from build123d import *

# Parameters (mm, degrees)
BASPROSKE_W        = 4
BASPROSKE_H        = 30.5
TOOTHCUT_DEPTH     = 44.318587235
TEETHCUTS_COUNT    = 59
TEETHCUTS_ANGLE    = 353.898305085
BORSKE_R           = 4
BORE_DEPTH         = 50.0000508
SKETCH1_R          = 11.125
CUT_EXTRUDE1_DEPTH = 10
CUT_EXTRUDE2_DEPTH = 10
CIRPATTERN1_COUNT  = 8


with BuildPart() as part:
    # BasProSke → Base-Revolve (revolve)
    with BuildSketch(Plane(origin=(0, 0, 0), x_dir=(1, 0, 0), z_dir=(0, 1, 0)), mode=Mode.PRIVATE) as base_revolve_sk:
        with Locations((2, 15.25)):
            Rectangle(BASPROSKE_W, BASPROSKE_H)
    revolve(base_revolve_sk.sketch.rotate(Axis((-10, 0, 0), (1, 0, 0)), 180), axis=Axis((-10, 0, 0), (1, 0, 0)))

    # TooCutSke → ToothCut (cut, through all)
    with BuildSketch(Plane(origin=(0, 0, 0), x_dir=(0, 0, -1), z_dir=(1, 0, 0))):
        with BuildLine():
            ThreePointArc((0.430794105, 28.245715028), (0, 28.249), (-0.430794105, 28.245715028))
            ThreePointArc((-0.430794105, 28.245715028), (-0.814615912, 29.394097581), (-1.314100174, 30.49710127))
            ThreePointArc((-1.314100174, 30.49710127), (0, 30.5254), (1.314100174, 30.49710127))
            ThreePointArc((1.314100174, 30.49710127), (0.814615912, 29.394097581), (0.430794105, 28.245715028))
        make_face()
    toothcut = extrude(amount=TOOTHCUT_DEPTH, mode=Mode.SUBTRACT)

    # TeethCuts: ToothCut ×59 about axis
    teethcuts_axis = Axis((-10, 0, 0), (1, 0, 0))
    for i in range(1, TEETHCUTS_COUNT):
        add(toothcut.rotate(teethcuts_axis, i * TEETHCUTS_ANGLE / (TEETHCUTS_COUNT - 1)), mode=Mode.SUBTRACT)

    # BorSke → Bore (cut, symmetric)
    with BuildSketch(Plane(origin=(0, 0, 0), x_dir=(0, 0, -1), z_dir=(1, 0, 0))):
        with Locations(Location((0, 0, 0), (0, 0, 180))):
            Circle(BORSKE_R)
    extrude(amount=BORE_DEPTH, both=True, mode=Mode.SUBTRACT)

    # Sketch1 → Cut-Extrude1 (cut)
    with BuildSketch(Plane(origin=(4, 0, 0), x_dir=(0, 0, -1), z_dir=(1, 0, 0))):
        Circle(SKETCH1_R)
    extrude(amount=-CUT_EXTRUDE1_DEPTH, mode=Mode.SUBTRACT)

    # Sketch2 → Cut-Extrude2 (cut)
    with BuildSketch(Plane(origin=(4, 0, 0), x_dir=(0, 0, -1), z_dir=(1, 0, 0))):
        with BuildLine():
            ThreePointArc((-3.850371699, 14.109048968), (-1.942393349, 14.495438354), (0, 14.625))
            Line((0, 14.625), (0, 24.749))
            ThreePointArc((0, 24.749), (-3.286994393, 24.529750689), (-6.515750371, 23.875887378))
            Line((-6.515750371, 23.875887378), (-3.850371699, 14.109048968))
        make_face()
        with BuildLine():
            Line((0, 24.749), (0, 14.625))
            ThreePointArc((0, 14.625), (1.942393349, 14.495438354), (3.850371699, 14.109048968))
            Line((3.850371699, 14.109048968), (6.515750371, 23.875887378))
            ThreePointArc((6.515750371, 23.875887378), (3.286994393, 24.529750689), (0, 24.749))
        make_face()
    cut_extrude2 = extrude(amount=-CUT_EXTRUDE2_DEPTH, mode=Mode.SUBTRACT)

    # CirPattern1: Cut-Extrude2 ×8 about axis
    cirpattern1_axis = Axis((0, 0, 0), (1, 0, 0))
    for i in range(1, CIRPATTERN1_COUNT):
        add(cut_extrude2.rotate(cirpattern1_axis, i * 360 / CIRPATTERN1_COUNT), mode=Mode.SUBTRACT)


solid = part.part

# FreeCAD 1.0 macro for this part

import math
import FreeCAD as App
import Part
import Sketcher

V = App.Vector
Q = App.Units.Quantity


def add_polygon(sketch, points):
    """Adds a closed chain of lines whose ends are joined by coincident constraints."""
    first, n = sketch.GeometryCount, len(points)
    for a, b in zip(points, points[1:] + points[:1]):
        sketch.addGeometry(Part.LineSegment(App.Vector(*a, 0), App.Vector(*b, 0)), False)
    for i in range(n):
        sketch.addConstraint(Sketcher.Constraint("Coincident", first + i, 2, first + (i + 1) % n, 1))

doc = App.newDocument("Part")
body = doc.addObject("PartDesign::Body", "Body")

sketch1 = body.newObject("Sketcher::SketchObject", "Sketch")
sketch1.AttachmentSupport = (doc.getObject("XZ_Plane"), [""])
sketch1.MapMode = "FlatFace"
add_polygon(sketch1, [(0, -30.5), (0, 0), (4, 0), (4, -30.5)])
sketch1.addConstraint(Sketcher.Constraint("Vertical", 0))
sketch1.addConstraint(Sketcher.Constraint("Horizontal", 1))
sketch1.addConstraint(Sketcher.Constraint("Vertical", 2))
sketch1.addConstraint(Sketcher.Constraint("Horizontal", 3))
sketch1.addConstraint(Sketcher.Constraint("Coincident", 0, 2, -1, 1))
sketch1.addConstraint(Sketcher.Constraint("DistanceX", 1, 1, 1, 2, Q("4 mm")))
sketch1.addConstraint(Sketcher.Constraint("DistanceY", 0, 1, 0, 2, Q("30.5 mm")))
revolution = body.newObject("PartDesign::Revolution", "Revolution")
revolution.Profile = sketch1
revolution.ReferenceAxis = (sketch1, ["H_Axis"])
revolution.Angle = 360

sketch2 = body.newObject("Sketcher::SketchObject", "Sketch001")
sketch2.AttachmentSupport = (doc.getObject("YZ_Plane"), [""])
sketch2.MapMode = "FlatFace"
sketch2.addGeometry(Part.ArcOfCircle(Part.Circle(V(0, 0, 0), V(0, 0, 1), 28.2), math.radians(-0.87), math.radians(0.87)), False)
sketch2.addGeometry(Part.ArcOfCircle(Part.Circle(V(25.1, -11.8, 0), V(0, 0, 1), 11.8), math.radians(62.7), math.radians(74.46)), False)
sketch2.addGeometry(Part.ArcOfCircle(Part.Circle(V(0, 0, 0), V(0, 0, 1), 30.5), math.radians(-2.47), math.radians(2.47)), False)
sketch2.addGeometry(Part.ArcOfCircle(Part.Circle(V(25.1, 11.8, 0), V(0, 0, 1), 11.8), math.radians(-74.46), math.radians(-62.7)), False)
sketch2.addConstraint(Sketcher.Constraint("Coincident", 0, 1, 1, 2))
sketch2.addConstraint(Sketcher.Constraint("Coincident", 1, 1, 2, 1))
sketch2.addConstraint(Sketcher.Constraint("Coincident", 2, 2, 3, 2))
sketch2.addConstraint(Sketcher.Constraint("Coincident", 3, 1, 0, 2))
sketch2.addConstraint(Sketcher.Constraint("Coincident", 0, 3, -1, 1))
sketch2.addConstraint(Sketcher.Constraint("Coincident", 2, 3, -1, 1))
sketch2.addConstraint(Sketcher.Constraint("Equal", 1, 3))
sketch2.addConstraint(Sketcher.Constraint("Symmetric", 1, 3, 3, 3, -1))
sketch2.addConstraint(Sketcher.Constraint("Radius", 1, Q("11.8 mm")))
sketch2.addConstraint(Sketcher.Constraint("Radius", 0, Q("28.249001 mm")))
sketch2.addConstraint(Sketcher.Constraint("Radius", 2, Q("30.5254 mm")))
sketch2.addConstraint(Sketcher.Constraint("DistanceX", -1, 1, 1, 1, Q("30.497101 mm")))
sketch2.addConstraint(Sketcher.Constraint("DistanceY", 1, 3, -1, 1, Q("11.79942 mm")))
pocket1 = body.newObject("PartDesign::Pocket", "Pocket")
pocket1.Profile = sketch2
pocket1.Type = "ThroughAll"
pocket1.Reversed = True
doc.recompute()

polarpattern = body.newObject("PartDesign::PolarPattern", "PolarPattern")
polarpattern.Originals = [pocket1]
polarpattern.Axis = (doc.getObject("X_Axis"), [""])
polarpattern.Angle = 360
polarpattern.Occurrences = 59
body.Tip = polarpattern

sketch3 = body.newObject("Sketcher::SketchObject", "Sketch002")
sketch3.AttachmentSupport = (doc.getObject("YZ_Plane"), [""])
sketch3.MapMode = "FlatFace"
sketch3.addGeometry(Part.Circle(V(0, 0, 0), V(0, 0, 1), 4), False)
sketch3.addConstraint(Sketcher.Constraint("Coincident", 0, 3, -1, 1))
sketch3.addConstraint(Sketcher.Constraint("Diameter", 0, Q("8 mm")))
pocket2 = body.newObject("PartDesign::Pocket", "Pocket001")
pocket2.Profile = sketch3
pocket2.Length = 100.000102
pocket2.Midplane = True

sketch4 = body.newObject("Sketcher::SketchObject", "Sketch003")
sketch4.AttachmentSupport = (doc.getObject("YZ_Plane"), [""])
sketch4.MapMode = "FlatFace"
sketch4.AttachmentOffset = App.Placement(V(0, 0, 4), App.Rotation())
sketch4.addGeometry(Part.Circle(V(0, 0, 0), V(0, 0, 1), 11), False)
sketch4.addConstraint(Sketcher.Constraint("Coincident", 0, 3, -1, 1))
sketch4.addConstraint(Sketcher.Constraint("Diameter", 0, Q("22.25 mm")))
pocket3 = body.newObject("PartDesign::Pocket", "Pocket002")
pocket3.Profile = sketch4
pocket3.Length = 10

sketch5 = body.newObject("Sketcher::SketchObject", "Sketch004")
sketch5.AttachmentSupport = (doc.getObject("YZ_Plane"), [""])
sketch5.MapMode = "FlatFace"
sketch5.AttachmentOffset = App.Placement(V(0, 0, 4), App.Rotation())
sketch5.addGeometry(Part.ArcOfCircle(Part.Circle(V(0, 0, 0), V(0, 0, 1), 14.6), math.radians(0), math.radians(15.26)), False)
sketch5.addGeometry(Part.ArcOfCircle(Part.Circle(V(0, 0, 0), V(0, 0, 1), 14.6), math.radians(-15.26), math.radians(0)), False)
sketch5.addGeometry(Part.LineSegment(V(14.1, -3.9, 0), V(23.9, -6.5, 0)), False)
sketch5.addGeometry(Part.ArcOfCircle(Part.Circle(V(0, 0, 0), V(0, 0, 1), 24.7), math.radians(-15.26), math.radians(0)), False)
sketch5.addGeometry(Part.ArcOfCircle(Part.Circle(V(0, 0, 0), V(0, 0, 1), 24.7), math.radians(0), math.radians(15.26)), False)
sketch5.addGeometry(Part.LineSegment(V(23.9, 6.5, 0), V(14.1, 3.9, 0)), False)
sketch5.addConstraint(Sketcher.Constraint("Tangent", 0, 1, 1, 2))
sketch5.addConstraint(Sketcher.Constraint("Coincident", 1, 1, 2, 1))
sketch5.addConstraint(Sketcher.Constraint("Coincident", 2, 2, 3, 1))
sketch5.addConstraint(Sketcher.Constraint("Tangent", 3, 2, 4, 1))
sketch5.addConstraint(Sketcher.Constraint("Coincident", 4, 2, 5, 1))
sketch5.addConstraint(Sketcher.Constraint("Coincident", 5, 2, 0, 2))
sketch5.addConstraint(Sketcher.Constraint("Coincident", 0, 3, -1, 1))
sketch5.addConstraint(Sketcher.Constraint("Coincident", 3, 3, -1, 1))
sketch5.addConstraint(Sketcher.Constraint("Equal", 0, 1))
sketch5.addConstraint(Sketcher.Constraint("Equal", 3, 4))
sketch5.addConstraint(Sketcher.Constraint("PointOnObject", 0, 1, -1))
sketch5.addConstraint(Sketcher.Constraint("PointOnObject", 3, 2, -1))
sketch5.addConstraint(Sketcher.Constraint("Vertical", 2, 2, 4, 2))
sketch5.addConstraint(Sketcher.Constraint("Vertical", 1, 1, 5, 2))
sketch5.addConstraint(Sketcher.Constraint("Radius", 0, Q("14.625 mm")))
sketch5.addConstraint(Sketcher.Constraint("Radius", 3, Q("24.749 mm")))
sketch5.addConstraint(Sketcher.Constraint("DistanceY", 2, 2, 4, 2, Q("13.031501 mm")))
sketch5.addConstraint(Sketcher.Constraint("DistanceX", -1, 1, 1, 1, Q("14.109049 mm")))
pocket4 = body.newObject("PartDesign::Pocket", "Pocket003")
pocket4.Profile = sketch5
pocket4.Length = 10
doc.recompute()

polarpattern2 = body.newObject("PartDesign::PolarPattern", "PolarPattern001")
polarpattern2.Originals = [pocket4]
polarpattern2.Axis = (doc.getObject("X_Axis"), [""])
polarpattern2.Angle = 360
polarpattern2.Occurrences = 8
body.Tip = polarpattern2

doc.recompute()
